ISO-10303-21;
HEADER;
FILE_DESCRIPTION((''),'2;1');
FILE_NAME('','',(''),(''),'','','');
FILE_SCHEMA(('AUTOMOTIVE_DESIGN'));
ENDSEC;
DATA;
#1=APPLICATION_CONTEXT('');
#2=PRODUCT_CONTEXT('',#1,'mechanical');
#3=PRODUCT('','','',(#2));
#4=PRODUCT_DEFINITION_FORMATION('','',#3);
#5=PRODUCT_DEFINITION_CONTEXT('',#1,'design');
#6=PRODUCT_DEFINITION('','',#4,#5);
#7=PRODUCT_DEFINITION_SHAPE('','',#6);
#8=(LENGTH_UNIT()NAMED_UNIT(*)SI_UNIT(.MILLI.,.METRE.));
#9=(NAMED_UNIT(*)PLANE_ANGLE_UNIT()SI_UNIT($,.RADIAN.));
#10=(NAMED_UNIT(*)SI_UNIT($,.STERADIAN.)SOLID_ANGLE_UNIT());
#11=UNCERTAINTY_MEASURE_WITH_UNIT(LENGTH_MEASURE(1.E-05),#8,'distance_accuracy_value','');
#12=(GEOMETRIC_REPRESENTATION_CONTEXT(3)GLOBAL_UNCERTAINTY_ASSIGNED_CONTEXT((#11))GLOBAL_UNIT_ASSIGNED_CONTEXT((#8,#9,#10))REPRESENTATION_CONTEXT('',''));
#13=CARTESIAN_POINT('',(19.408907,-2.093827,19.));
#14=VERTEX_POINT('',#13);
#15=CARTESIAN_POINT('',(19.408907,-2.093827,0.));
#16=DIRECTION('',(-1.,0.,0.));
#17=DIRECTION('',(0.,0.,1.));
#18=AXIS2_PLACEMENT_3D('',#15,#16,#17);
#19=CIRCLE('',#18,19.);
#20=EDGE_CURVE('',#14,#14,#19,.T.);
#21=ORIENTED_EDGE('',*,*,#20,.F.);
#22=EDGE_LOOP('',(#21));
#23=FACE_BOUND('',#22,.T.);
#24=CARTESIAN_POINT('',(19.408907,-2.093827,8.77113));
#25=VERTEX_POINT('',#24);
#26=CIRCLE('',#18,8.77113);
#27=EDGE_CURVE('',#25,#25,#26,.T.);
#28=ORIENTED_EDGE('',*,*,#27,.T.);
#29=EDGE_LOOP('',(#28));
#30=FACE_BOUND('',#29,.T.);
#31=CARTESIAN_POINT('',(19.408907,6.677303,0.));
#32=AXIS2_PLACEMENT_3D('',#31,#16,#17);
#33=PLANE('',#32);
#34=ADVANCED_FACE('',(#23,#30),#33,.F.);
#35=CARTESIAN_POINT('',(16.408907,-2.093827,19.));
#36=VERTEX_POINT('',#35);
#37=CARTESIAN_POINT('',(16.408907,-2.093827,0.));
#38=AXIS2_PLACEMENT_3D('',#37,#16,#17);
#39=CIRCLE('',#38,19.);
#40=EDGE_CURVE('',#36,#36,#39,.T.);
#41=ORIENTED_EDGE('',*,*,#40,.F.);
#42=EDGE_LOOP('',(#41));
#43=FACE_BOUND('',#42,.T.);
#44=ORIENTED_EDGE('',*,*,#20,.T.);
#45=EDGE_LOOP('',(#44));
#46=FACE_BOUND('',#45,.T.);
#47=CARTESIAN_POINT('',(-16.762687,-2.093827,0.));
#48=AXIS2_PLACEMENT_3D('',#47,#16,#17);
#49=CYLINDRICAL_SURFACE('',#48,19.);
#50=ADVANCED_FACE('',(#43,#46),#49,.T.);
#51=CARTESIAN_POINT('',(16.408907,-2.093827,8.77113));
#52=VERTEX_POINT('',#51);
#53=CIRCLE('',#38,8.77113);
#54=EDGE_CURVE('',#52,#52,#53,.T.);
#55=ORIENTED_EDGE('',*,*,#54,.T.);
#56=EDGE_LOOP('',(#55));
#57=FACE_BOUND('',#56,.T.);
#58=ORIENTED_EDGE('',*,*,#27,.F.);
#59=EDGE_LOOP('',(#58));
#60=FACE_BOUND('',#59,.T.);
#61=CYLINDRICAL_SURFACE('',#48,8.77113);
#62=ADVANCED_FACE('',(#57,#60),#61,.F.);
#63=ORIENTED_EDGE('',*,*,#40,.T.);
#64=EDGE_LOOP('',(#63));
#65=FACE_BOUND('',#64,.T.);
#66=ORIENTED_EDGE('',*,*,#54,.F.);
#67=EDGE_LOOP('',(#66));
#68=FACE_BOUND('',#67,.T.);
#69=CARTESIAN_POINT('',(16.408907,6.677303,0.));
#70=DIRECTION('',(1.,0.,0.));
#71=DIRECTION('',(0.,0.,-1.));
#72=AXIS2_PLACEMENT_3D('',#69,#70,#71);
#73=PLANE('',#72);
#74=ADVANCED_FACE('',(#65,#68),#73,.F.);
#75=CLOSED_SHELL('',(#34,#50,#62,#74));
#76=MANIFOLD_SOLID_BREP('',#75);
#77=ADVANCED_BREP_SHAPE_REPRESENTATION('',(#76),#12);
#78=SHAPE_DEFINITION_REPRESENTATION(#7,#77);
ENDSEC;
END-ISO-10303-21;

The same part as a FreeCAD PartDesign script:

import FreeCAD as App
import Part
import Sketcher
from FreeCAD import Vector


def add_polygon(sketch, points):
    """Adds a closed chain of lines whose ends are joined by coincident constraints."""
    first, n = sketch.GeometryCount, len(points)
    for a, b in zip(points, points[1:] + points[:1]):
        sketch.addGeometry(Part.LineSegment(App.Vector(*a, 0), App.Vector(*b, 0)), False)
    for i in range(n):
        sketch.addConstraint(Sketcher.Constraint("Coincident", first + i, 2, first + (i + 1) % n, 1))

doc = App.newDocument("Part")
body = doc.addObject("PartDesign::Body", "Body")

# Sketch on XY plane
sketch1 = body.newObject("Sketcher::SketchObject", "Sketch")
sketch1.AttachmentSupport = (doc.getObject("XY_Plane"), [""])
sketch1.MapMode = "FlatFace"
add_polygon(sketch1, [(16.408907, 16.906173), (16.408907, 6.677303), (19.408907, 6.677303), (19.408907, 16.906173)])  # lines 0-3
sketch1.addGeometry(Part.LineSegment(Vector(16.408907, -2.093827, 0), Vector(19.408907, -2.093827, 0)), True)  # axis
sketch1.addConstraint(Sketcher.Constraint("Vertical", 0))
sketch1.addConstraint(Sketcher.Constraint("Horizontal", 1))
sketch1.addConstraint(Sketcher.Constraint("Vertical", 2))
sketch1.addConstraint(Sketcher.Constraint("Horizontal", 3))
sketch1.addConstraint(Sketcher.Constraint("Horizontal", 4))
sketch1.addConstraint(Sketcher.Constraint("Vertical", 3, 2, 4, 1))
sketch1.addConstraint(Sketcher.Constraint("Vertical", 2, 2, 4, 2))
sketch1.addConstraint(Sketcher.Constraint("DistanceX", 1, 1, 1, 2, 3.0))
sketch1.addConstraint(Sketcher.Constraint("DistanceY", 4, 1, 3, 2, 19.0))
sketch1.addConstraint(Sketcher.Constraint("DistanceY", 0, 2, 0, 1, 10.22887))
sketch1.addConstraint(Sketcher.Constraint("DistanceX", -1, 1, 0, 2, 16.408907))
sketch1.addConstraint(Sketcher.Constraint("DistanceY", -1, 1, 0, 2, 6.677303))
revolution = body.newObject("PartDesign::Revolution", "Revolution")
revolution.Profile = sketch1
revolution.ReferenceAxis = (sketch1, ["Axis0"])
revolution.Angle = 360

doc.recompute()
